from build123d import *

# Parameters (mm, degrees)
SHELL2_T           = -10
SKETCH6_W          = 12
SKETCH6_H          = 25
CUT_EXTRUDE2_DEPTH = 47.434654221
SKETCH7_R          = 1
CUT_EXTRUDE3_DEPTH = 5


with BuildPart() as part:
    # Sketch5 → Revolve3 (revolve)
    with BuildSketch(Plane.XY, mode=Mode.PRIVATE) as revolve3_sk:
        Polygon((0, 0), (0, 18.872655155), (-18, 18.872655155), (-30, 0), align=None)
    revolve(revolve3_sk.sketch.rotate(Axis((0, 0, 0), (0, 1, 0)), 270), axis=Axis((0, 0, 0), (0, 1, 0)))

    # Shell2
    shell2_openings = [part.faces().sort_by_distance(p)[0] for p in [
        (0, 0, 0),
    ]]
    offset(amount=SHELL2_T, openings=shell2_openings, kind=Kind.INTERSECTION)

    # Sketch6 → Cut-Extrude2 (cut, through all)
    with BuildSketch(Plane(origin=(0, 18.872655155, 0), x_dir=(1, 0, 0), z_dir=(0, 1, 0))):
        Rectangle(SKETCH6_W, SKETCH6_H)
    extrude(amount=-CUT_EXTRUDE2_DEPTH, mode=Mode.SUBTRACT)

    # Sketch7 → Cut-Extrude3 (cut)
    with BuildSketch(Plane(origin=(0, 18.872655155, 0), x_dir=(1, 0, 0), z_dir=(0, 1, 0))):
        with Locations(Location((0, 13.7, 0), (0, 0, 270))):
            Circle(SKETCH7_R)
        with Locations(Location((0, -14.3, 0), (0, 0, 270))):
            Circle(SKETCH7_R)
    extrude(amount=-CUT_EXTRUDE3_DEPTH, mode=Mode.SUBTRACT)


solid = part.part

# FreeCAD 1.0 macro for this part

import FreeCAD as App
import Part
import Sketcher
from FreeCAD import Vector
Q = App.Units.Quantity


def faces_at(feature, points):
    """Names of the faces that lie closest to the given points."""
    faces = feature.Shape.Faces
    near = lambda p: min(range(len(faces)), key=lambda i: faces[i].distToShape(Part.Vertex(*p))[0])
    return sorted({f"Face{near(p) + 1}" for p in points})


def add_polygon(sketch, points):
    """Adds a closed chain of lines whose ends are joined by coincident constraints."""
    first, n = sketch.GeometryCount, len(points)
    for a, b in zip(points, points[1:] + points[:1]):
        sketch.addGeometry(Part.LineSegment(App.Vector(*a, 0), App.Vector(*b, 0)), False)
    for i in range(n):
        sketch.addConstraint(Sketcher.Constraint("Coincident", first + i, 2, first + (i + 1) % n, 1))

doc = App.newDocument("Part")
body = doc.addObject("PartDesign::Body", "Body")

# Sketch on XY plane
sketch1 = doc.addObject("Sketcher::SketchObject", "Sketch")
body.addObject(sketch1)
sketch1.AttachmentSupport = (doc.XY_Plane, [""])
sketch1.MapMode = "FlatFace"
add_polygon(sketch1, [(0, 0), (0, 19), (-18, 19), (-30, 0)])  # lines 0-3
sketch1.addConstraint([
    Sketcher.Constraint("Vertical", 0),
    Sketcher.Constraint("Horizontal", 1),
    Sketcher.Constraint("Horizontal", 3),
    Sketcher.Constraint("Coincident", 3, 2, -1, 1),
    Sketcher.Constraint("DistanceX", 1, 2, 1, 1, Q("18 mm")),
    Sketcher.Constraint("DistanceX", 3, 1, 3, 2, Q("30 mm")),
    Sketcher.Constraint("Distance", 2, Q("22.36464 mm")),
])
revolution = doc.addObject("PartDesign::Revolution", "Revolution")
body.addObject(revolution)
revolution.Profile = sketch1
revolution.ReferenceAxis = (sketch1, ["V_Axis"])
revolution.Angle = 360
doc.recompute()

thickness = doc.addObject("PartDesign::Thickness", "Thickness")
body.addObject(thickness)
thickness.Base = (revolution, faces_at(revolution, [(0, 0, 0)]))
thickness.Value = 10
thickness.Reversed = True
thickness.Join = "Intersection"

# Sketch on XZ plane
sketch2 = doc.addObject("Sketcher::SketchObject", "Sketch001")
body.addObject(sketch2)
sketch2.AttachmentSupport = (doc.XZ_Plane, [""])
sketch2.MapMode = "FlatFace"
sketch2.AttachmentOffset = App.Placement(Vector(0, 0, -18.872655), App.Rotation())
add_polygon(sketch2, [(-6, -12), (-6, 12), (6, 12), (6, -12)])  # lines 0-3
sketch2.addConstraint([
    Sketcher.Constraint("Vertical", 0),
    Sketcher.Constraint("Horizontal", 1),
    Sketcher.Constraint("Vertical", 2),
    Sketcher.Constraint("Horizontal", 3),
    Sketcher.Constraint("Symmetric", 0, 2, 2, 2, -1, 1),
    Sketcher.Constraint("DistanceX", 1, 1, 1, 2, Q("12 mm")),
    Sketcher.Constraint("DistanceY", 0, 1, 0, 2, Q("25 mm")),
])
pocket1 = doc.addObject("PartDesign::Pocket", "Pocket")
body.addObject(pocket1)
pocket1.Profile = sketch2
pocket1.Type = "ThroughAll"
pocket1.Reversed = True

# Sketch on XZ plane
sketch3 = doc.addObject("Sketcher::SketchObject", "Sketch002")
body.addObject(sketch3)
sketch3.AttachmentSupport = (doc.XZ_Plane, [""])
sketch3.MapMode = "FlatFace"
sketch3.AttachmentOffset = App.Placement(Vector(0, 0, -18.872655), App.Rotation())
sketch3.addGeometry([
    Part.Circle(Vector(0, -13.7, 0), Vector(0, 0, 1), 1),
    Part.Circle(Vector(0, 14.3, 0), Vector(0, 0, 1), 1),
], False)
sketch3.addConstraint([
    Sketcher.Constraint("Equal", 0, 1),
    Sketcher.Constraint("PointOnObject", 0, 3, -2),
    Sketcher.Constraint("PointOnObject", 1, 3, -2),
    Sketcher.Constraint("Diameter", 0, Q("2 mm")),
    Sketcher.Constraint("DistanceY", 0, 3, 1, 3, Q("28 mm")),
    Sketcher.Constraint("DistanceY", 0, 3, -1, 1, Q("13.7 mm")),
])
pocket2 = doc.addObject("PartDesign::Pocket", "Pocket001")
body.addObject(pocket2)
pocket2.Profile = sketch3
pocket2.Length = 5
pocket2.Reversed = True

doc.recompute()
